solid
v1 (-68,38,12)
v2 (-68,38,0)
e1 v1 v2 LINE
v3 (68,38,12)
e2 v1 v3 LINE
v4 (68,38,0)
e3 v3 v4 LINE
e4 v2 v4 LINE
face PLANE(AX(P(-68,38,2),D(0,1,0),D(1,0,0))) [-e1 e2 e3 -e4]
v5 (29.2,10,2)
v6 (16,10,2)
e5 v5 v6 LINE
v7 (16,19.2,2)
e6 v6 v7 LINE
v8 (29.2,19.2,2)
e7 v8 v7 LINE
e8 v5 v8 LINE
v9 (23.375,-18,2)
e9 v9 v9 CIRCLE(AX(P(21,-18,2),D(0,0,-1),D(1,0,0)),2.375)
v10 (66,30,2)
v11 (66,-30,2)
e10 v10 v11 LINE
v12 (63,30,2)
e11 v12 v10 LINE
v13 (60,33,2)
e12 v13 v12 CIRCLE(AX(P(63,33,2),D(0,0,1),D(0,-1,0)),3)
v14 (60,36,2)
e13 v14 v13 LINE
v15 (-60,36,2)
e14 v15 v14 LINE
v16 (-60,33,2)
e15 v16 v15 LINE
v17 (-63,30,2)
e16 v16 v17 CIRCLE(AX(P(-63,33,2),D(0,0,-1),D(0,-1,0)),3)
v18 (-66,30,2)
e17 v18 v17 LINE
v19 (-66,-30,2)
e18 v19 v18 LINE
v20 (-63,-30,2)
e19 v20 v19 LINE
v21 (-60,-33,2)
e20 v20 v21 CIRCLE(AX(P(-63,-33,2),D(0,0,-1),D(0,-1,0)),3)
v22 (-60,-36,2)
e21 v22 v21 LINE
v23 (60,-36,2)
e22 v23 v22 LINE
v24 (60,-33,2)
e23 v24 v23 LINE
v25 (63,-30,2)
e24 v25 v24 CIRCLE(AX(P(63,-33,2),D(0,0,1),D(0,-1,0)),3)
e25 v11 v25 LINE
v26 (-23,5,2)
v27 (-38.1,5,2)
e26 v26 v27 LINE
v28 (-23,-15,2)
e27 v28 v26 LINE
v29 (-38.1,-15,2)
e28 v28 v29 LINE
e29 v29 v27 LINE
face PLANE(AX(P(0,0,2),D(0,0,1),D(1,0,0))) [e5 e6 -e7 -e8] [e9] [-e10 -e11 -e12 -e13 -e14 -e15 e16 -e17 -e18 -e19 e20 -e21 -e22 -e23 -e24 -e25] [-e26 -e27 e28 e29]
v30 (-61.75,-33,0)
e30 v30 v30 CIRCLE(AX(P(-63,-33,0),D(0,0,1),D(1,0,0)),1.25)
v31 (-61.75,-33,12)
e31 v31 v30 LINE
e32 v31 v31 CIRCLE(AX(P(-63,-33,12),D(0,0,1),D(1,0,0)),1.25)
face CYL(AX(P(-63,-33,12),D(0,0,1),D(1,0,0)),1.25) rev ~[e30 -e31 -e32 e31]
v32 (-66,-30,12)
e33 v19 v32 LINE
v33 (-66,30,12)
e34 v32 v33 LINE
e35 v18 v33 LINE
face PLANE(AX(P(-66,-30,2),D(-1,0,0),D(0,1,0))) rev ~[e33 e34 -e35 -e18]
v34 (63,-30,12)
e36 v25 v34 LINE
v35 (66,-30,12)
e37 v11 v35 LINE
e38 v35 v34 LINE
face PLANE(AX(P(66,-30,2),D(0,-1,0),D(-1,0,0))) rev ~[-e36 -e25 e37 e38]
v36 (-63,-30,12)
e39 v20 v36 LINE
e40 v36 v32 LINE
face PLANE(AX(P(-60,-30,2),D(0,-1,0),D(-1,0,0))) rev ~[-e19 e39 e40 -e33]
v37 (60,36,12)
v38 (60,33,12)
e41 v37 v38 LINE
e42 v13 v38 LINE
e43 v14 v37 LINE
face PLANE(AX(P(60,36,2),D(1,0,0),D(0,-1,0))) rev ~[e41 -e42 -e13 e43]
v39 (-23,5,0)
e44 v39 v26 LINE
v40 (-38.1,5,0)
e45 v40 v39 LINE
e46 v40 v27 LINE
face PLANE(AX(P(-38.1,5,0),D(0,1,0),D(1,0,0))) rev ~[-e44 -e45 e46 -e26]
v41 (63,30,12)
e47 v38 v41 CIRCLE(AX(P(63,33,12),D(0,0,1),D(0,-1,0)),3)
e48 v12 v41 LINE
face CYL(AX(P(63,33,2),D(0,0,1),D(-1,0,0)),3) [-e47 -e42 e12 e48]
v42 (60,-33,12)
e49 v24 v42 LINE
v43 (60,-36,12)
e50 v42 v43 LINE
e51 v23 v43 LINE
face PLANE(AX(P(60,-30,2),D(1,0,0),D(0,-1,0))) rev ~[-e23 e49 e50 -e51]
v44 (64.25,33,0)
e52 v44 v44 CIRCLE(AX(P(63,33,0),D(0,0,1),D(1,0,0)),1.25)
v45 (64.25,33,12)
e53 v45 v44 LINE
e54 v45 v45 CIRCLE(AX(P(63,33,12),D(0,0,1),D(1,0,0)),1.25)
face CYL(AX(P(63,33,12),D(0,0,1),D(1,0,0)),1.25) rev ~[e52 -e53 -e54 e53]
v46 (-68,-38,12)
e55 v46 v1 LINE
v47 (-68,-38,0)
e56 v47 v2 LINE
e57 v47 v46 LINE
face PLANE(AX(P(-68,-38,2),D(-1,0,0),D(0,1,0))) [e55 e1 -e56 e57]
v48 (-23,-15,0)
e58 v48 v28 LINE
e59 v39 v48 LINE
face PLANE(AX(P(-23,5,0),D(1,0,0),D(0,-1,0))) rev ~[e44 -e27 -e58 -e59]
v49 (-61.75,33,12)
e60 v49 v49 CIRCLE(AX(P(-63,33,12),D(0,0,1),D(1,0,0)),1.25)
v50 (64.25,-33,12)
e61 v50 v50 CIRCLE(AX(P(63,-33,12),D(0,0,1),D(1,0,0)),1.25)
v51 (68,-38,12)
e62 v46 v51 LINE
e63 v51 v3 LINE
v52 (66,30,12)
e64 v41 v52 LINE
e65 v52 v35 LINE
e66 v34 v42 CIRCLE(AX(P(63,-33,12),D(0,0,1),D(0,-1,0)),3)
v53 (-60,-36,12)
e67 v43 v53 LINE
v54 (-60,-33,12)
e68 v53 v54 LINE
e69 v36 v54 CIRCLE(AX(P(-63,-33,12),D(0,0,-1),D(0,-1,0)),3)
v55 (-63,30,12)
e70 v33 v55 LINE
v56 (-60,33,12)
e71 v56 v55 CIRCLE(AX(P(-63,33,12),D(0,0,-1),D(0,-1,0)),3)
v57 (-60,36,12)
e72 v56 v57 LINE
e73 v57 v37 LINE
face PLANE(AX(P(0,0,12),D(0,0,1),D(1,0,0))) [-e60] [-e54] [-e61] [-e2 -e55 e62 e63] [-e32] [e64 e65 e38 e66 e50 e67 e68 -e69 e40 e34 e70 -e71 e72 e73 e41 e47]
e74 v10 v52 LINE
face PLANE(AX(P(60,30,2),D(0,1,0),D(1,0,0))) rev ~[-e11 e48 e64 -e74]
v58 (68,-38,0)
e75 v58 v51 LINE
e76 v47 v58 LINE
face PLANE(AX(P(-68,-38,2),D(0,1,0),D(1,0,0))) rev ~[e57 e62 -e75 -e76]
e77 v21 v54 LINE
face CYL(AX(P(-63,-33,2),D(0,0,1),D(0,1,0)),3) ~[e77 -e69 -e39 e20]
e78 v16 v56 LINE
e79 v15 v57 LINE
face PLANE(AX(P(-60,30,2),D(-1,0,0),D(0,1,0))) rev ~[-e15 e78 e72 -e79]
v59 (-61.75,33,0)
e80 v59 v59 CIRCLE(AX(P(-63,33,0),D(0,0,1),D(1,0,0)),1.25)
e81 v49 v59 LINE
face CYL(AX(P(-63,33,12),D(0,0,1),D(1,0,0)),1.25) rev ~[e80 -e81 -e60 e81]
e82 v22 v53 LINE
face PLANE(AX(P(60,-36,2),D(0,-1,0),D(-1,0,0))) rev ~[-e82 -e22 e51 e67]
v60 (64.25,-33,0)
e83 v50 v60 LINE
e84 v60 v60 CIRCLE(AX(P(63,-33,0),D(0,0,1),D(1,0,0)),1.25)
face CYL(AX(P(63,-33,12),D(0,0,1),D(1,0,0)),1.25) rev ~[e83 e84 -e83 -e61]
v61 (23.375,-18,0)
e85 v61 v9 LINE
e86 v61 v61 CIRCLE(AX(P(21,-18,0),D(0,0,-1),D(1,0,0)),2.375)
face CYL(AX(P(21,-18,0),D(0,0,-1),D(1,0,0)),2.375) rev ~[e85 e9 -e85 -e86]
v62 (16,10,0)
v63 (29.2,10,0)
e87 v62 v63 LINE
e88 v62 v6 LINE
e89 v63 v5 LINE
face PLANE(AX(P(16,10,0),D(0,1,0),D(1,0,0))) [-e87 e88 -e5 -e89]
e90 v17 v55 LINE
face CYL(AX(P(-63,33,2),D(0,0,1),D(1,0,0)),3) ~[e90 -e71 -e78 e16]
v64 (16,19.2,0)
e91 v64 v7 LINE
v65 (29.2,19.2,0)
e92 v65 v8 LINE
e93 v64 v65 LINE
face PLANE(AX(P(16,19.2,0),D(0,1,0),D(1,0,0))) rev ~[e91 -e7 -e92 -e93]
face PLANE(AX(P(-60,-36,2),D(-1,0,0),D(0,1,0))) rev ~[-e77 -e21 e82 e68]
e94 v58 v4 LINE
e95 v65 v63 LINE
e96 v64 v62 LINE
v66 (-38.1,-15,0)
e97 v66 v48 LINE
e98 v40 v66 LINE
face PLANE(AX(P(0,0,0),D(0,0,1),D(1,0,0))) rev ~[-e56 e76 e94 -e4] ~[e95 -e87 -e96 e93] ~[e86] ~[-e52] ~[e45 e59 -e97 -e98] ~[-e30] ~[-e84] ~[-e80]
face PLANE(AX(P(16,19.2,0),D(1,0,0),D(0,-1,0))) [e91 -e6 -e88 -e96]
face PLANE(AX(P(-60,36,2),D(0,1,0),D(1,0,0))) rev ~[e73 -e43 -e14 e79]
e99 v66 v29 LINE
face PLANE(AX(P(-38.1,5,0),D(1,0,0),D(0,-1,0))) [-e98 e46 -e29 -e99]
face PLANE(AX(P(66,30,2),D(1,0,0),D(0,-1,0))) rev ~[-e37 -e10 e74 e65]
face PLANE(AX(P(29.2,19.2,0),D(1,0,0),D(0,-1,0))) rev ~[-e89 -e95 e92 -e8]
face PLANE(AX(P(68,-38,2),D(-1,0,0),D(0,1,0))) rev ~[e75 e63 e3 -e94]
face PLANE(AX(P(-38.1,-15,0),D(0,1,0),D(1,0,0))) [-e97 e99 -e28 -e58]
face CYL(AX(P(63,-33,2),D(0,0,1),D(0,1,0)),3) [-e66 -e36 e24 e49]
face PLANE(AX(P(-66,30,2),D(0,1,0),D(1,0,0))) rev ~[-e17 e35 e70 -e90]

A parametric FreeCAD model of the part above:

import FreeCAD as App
import Part
import Sketcher
from FreeCAD import Vector
Q = App.Units.Quantity


def edges_at(feature, points):
    """Names of the edges that pass closest to the given points."""
    edges = feature.Shape.Edges
    near = lambda p: min(range(len(edges)), key=lambda i: edges[i].distToShape(Part.Vertex(*p))[0])
    return sorted({f"Edge{near(p) + 1}" for p in points})

doc = App.newDocument("Part")
body = doc.addObject("PartDesign::Body", "Body")

# Sketch on XY plane
sketch1 = body.newObject("Sketcher::SketchObject", "Sketch")
sketch1.AttachmentSupport = (doc.getObject("XY_Plane"), [""])
sketch1.MapMode = "FlatFace"
sketch1.addGeometry([
    Part.LineSegment(Vector(-68, 38, 0), Vector(-68, -38, 0)),
    Part.LineSegment(Vector(-68, -38, 0), Vector(68, -38, 0)),
    Part.LineSegment(Vector(68, -38, 0), Vector(68, 38, 0)),
    Part.LineSegment(Vector(68, 38, 0), Vector(-68, 38, 0)),
], False)
sketch1.addConstraint([
    Sketcher.Constraint("Coincident", 0, 2, 1, 1),
    Sketcher.Constraint("Coincident", 1, 2, 2, 1),
    Sketcher.Constraint("Coincident", 2, 2, 3, 1),
    Sketcher.Constraint("Coincident", 3, 2, 0, 1),
    Sketcher.Constraint("Vertical", 0),
    Sketcher.Constraint("Horizontal", 1),
    Sketcher.Constraint("Vertical", 2),
    Sketcher.Constraint("Horizontal", 3),
    Sketcher.Constraint("Symmetric", 0, 2, 2, 2, -1, 1),
    Sketcher.Constraint("DistanceX", 1, 1, 1, 2, Q("136 mm")),
    Sketcher.Constraint("DistanceY", 0, 2, 0, 1, Q("76 mm")),
])
pad1 = body.newObject("PartDesign::Pad", "Pad")
pad1.Profile = sketch1
pad1.Length = 2

# Sketch on XY plane
sketch2 = body.newObject("Sketcher::SketchObject", "Sketch001")
sketch2.AttachmentSupport = (doc.getObject("XY_Plane"), [""])
sketch2.MapMode = "FlatFace"
sketch2.AttachmentOffset = App.Placement(Vector(0, 0, 2), App.Rotation())
sketch2.addGeometry([
    Part.LineSegment(Vector(-68, 38, 0), Vector(-68, -38, 0)),  # 0
    Part.LineSegment(Vector(-68, -38, 0), Vector(68, -38, 0)),  # 1
    Part.LineSegment(Vector(68, -38, 0), Vector(68, 38, 0)),  # 2
    Part.LineSegment(Vector(68, 38, 0), Vector(-68, 38, 0)),  # 3
    Part.LineSegment(Vector(-60, 30, 0), Vector(-60, 36, 0)),  # 4
    Part.LineSegment(Vector(-60, 36, 0), Vector(60, 36, 0)),  # 5
    Part.LineSegment(Vector(60, 36, 0), Vector(60, 30, 0)),  # 6
    Part.LineSegment(Vector(60, 30, 0), Vector(66, 30, 0)),  # 7
    Part.LineSegment(Vector(66, 30, 0), Vector(66, -30, 0)),  # 8
    Part.LineSegment(Vector(66, -30, 0), Vector(60, -30, 0)),  # 9
    Part.LineSegment(Vector(60, -30, 0), Vector(60, -36, 0)),  # 10
    Part.LineSegment(Vector(60, -36, 0), Vector(-60, -36, 0)),  # 11
    Part.LineSegment(Vector(-60, -36, 0), Vector(-60, -30, 0)),  # 12
    Part.LineSegment(Vector(-60, -30, 0), Vector(-66, -30, 0)),  # 13
    Part.LineSegment(Vector(-66, -30, 0), Vector(-66, 30, 0)),  # 14
    Part.LineSegment(Vector(-66, 30, 0), Vector(-60, 30, 0)),  # 15
], False)
sketch2.addConstraint([
    Sketcher.Constraint("Coincident", 0, 2, 1, 1),
    Sketcher.Constraint("Coincident", 1, 2, 2, 1),
    Sketcher.Constraint("Coincident", 2, 2, 3, 1),
    Sketcher.Constraint("Coincident", 3, 2, 0, 1),
    Sketcher.Constraint("Coincident", 4, 2, 5, 1),
    Sketcher.Constraint("Coincident", 5, 2, 6, 1),
    Sketcher.Constraint("Coincident", 6, 2, 7, 1),
    Sketcher.Constraint("Coincident", 7, 2, 8, 1),
    Sketcher.Constraint("Coincident", 8, 2, 9, 1),
    Sketcher.Constraint("Coincident", 9, 2, 10, 1),
    Sketcher.Constraint("Coincident", 10, 2, 11, 1),
    Sketcher.Constraint("Coincident", 11, 2, 12, 1),
    Sketcher.Constraint("Coincident", 12, 2, 13, 1),
    Sketcher.Constraint("Coincident", 13, 2, 14, 1),
    Sketcher.Constraint("Coincident", 14, 2, 15, 1),
    Sketcher.Constraint("Coincident", 15, 2, 4, 1),
    Sketcher.Constraint("Vertical", 0),
    Sketcher.Constraint("Horizontal", 1),
    Sketcher.Constraint("Vertical", 2),
    Sketcher.Constraint("Horizontal", 3),
    Sketcher.Constraint("Vertical", 4),
    Sketcher.Constraint("Horizontal", 5),
    Sketcher.Constraint("Vertical", 6),
    Sketcher.Constraint("Horizontal", 7),
    Sketcher.Constraint("Vertical", 8),
    Sketcher.Constraint("Horizontal", 9),
    Sketcher.Constraint("Vertical", 10),
    Sketcher.Constraint("Horizontal", 11),
    Sketcher.Constraint("Vertical", 12),
    Sketcher.Constraint("Horizontal", 13),
    Sketcher.Constraint("Vertical", 14),
    Sketcher.Constraint("Horizontal", 15),
    Sketcher.Constraint("Symmetric", 0, 2, 2, 2, -1, 1),
    Sketcher.Constraint("Symmetric", 4, 2, 10, 2, -1, 1),
    Sketcher.Constraint("Symmetric", 6, 2, 12, 2, -1, 1),
    Sketcher.Constraint("Symmetric", 8, 2, 14, 2, -1, 1),
    Sketcher.Constraint("Symmetric", 9, 2, 12, 2, -2),
    Sketcher.Constraint("Equal", 15, 4),
    Sketcher.Constraint("DistanceX", 1, 1, 1, 2, Q("136 mm")),
    Sketcher.Constraint("DistanceX", 5, 1, 5, 2, Q("120 mm")),
    Sketcher.Constraint("DistanceX", 7, 1, 7, 2, Q("6 mm")),
    Sketcher.Constraint("DistanceY", 0, 2, 0, 1, Q("76 mm")),
    Sketcher.Constraint("DistanceY", 8, 2, 8, 1, Q("60 mm")),
])
pad2 = body.newObject("PartDesign::Pad", "Pad001")
pad2.Profile = sketch2
pad2.Length = 10

# Sketch on XY plane
sketch3 = body.newObject("Sketcher::SketchObject", "Sketch002")
sketch3.AttachmentSupport = (doc.getObject("XY_Plane"), [""])
sketch3.MapMode = "FlatFace"
sketch3.AttachmentOffset = App.Placement(Vector(0, 0, 12), App.Rotation())
sketch3.addGeometry([
    Part.Circle(Vector(-63, 33, 0), Vector(0, 0, 1), 1.2),
    Part.Circle(Vector(-63, -33, 0), Vector(0, 0, 1), 1.2),
    Part.Circle(Vector(63, 33, 0), Vector(0, 0, 1), 1.2),
    Part.Circle(Vector(63, -33, 0), Vector(0, 0, 1), 1.2),
], False)
sketch3.addConstraint([
    Sketcher.Constraint("Equal", 0, 1),
    Sketcher.Constraint("Equal", 1, 2),
    Sketcher.Constraint("Equal", 2, 3),
    Sketcher.Constraint("Symmetric", 1, 3, 2, 3, -1, 1),
    Sketcher.Constraint("Symmetric", 0, 3, 3, 3, -1, 1),
    Sketcher.Constraint("Symmetric", 0, 3, 2, 3, -2),
    Sketcher.Constraint("Diameter", 0, Q("2.5 mm")),
    Sketcher.Constraint("DistanceX", 0, 3, -1, 1, Q("63 mm")),
    Sketcher.Constraint("DistanceY", -1, 1, 0, 3, Q("33 mm")),
])
pocket1 = body.newObject("PartDesign::Pocket", "Pocket")
pocket1.Profile = sketch3
pocket1.Length = 13

# Sketch on XY plane
sketch4 = body.newObject("Sketcher::SketchObject", "Sketch003")
sketch4.AttachmentSupport = (doc.getObject("XY_Plane"), [""])
sketch4.MapMode = "FlatFace"
sketch4.addGeometry([
    Part.Circle(Vector(21, -18, 0), Vector(0, 0, 1), 2.4),  # 0
    Part.LineSegment(Vector(-38.1, -15, 0), Vector(-38.1, 5, 0)),  # 1
    Part.LineSegment(Vector(-38.1, 5, 0), Vector(-23, 5, 0)),  # 2
    Part.LineSegment(Vector(-23, 5, 0), Vector(-23, -15, 0)),  # 3
    Part.LineSegment(Vector(-23, -15, 0), Vector(-38.1, -15, 0)),  # 4
    Part.LineSegment(Vector(16, 10, 0), Vector(16, 19.2, 0)),  # 5
    Part.LineSegment(Vector(16, 19.2, 0), Vector(29.2, 19.2, 0)),  # 6
    Part.LineSegment(Vector(29.2, 19.2, 0), Vector(29.2, 10, 0)),  # 7
    Part.LineSegment(Vector(29.2, 10, 0), Vector(16, 10, 0)),  # 8
], False)
sketch4.addConstraint([
    Sketcher.Constraint("Coincident", 1, 2, 2, 1),
    Sketcher.Constraint("Coincident", 2, 2, 3, 1),
    Sketcher.Constraint("Coincident", 3, 2, 4, 1),
    Sketcher.Constraint("Coincident", 4, 2, 1, 1),
    Sketcher.Constraint("Coincident", 5, 2, 6, 1),
    Sketcher.Constraint("Coincident", 6, 2, 7, 1),
    Sketcher.Constraint("Coincident", 7, 2, 8, 1),
    Sketcher.Constraint("Coincident", 8, 2, 5, 1),
    Sketcher.Constraint("Vertical", 1),
    Sketcher.Constraint("Horizontal", 2),
    Sketcher.Constraint("Vertical", 3),
    Sketcher.Constraint("Horizontal", 4),
    Sketcher.Constraint("Vertical", 5),
    Sketcher.Constraint("Horizontal", 6),
    Sketcher.Constraint("Vertical", 7),
    Sketcher.Constraint("Horizontal", 8),
    Sketcher.Constraint("Diameter", 0, Q("4.75 mm")),
    Sketcher.Constraint("DistanceY", 1, 1, 1, 2, Q("20 mm")),
    Sketcher.Constraint("DistanceX", 2, 1, 2, 2, Q("15.1 mm")),
    Sketcher.Constraint("DistanceX", 6, 1, 6, 2, Q("13.2 mm")),
    Sketcher.Constraint("DistanceY", 5, 1, 5, 2, Q("9.2 mm")),
    Sketcher.Constraint("DistanceX", -1, 1, 0, 3, Q("21 mm")),
    Sketcher.Constraint("DistanceY", 0, 3, -1, 1, Q("18 mm")),
    Sketcher.Constraint("DistanceY", -1, 1, 1, 2, Q("5 mm")),
    Sketcher.Constraint("DistanceX", 2, 2, -1, 1, Q("23 mm")),
    Sketcher.Constraint("DistanceX", -1, 1, 5, 2, Q("16 mm")),
    Sketcher.Constraint("DistanceY", -1, 1, 7, 2, Q("10 mm")),
])
pocket2 = body.newObject("PartDesign::Pocket", "Pocket001")
pocket2.Profile = sketch4
pocket2.Length = 3
pocket2.Reversed = True
doc.recompute()

fillet = body.newObject("PartDesign::Fillet", "Fillet")
fillet.Base = (pocket2, edges_at(pocket2, [
    (60, 30, 7),
    (-60, 30, 7),
    (60, -30, 7),
    (-60, -30, 7),
]))
fillet.Radius = 3

doc.recompute()
